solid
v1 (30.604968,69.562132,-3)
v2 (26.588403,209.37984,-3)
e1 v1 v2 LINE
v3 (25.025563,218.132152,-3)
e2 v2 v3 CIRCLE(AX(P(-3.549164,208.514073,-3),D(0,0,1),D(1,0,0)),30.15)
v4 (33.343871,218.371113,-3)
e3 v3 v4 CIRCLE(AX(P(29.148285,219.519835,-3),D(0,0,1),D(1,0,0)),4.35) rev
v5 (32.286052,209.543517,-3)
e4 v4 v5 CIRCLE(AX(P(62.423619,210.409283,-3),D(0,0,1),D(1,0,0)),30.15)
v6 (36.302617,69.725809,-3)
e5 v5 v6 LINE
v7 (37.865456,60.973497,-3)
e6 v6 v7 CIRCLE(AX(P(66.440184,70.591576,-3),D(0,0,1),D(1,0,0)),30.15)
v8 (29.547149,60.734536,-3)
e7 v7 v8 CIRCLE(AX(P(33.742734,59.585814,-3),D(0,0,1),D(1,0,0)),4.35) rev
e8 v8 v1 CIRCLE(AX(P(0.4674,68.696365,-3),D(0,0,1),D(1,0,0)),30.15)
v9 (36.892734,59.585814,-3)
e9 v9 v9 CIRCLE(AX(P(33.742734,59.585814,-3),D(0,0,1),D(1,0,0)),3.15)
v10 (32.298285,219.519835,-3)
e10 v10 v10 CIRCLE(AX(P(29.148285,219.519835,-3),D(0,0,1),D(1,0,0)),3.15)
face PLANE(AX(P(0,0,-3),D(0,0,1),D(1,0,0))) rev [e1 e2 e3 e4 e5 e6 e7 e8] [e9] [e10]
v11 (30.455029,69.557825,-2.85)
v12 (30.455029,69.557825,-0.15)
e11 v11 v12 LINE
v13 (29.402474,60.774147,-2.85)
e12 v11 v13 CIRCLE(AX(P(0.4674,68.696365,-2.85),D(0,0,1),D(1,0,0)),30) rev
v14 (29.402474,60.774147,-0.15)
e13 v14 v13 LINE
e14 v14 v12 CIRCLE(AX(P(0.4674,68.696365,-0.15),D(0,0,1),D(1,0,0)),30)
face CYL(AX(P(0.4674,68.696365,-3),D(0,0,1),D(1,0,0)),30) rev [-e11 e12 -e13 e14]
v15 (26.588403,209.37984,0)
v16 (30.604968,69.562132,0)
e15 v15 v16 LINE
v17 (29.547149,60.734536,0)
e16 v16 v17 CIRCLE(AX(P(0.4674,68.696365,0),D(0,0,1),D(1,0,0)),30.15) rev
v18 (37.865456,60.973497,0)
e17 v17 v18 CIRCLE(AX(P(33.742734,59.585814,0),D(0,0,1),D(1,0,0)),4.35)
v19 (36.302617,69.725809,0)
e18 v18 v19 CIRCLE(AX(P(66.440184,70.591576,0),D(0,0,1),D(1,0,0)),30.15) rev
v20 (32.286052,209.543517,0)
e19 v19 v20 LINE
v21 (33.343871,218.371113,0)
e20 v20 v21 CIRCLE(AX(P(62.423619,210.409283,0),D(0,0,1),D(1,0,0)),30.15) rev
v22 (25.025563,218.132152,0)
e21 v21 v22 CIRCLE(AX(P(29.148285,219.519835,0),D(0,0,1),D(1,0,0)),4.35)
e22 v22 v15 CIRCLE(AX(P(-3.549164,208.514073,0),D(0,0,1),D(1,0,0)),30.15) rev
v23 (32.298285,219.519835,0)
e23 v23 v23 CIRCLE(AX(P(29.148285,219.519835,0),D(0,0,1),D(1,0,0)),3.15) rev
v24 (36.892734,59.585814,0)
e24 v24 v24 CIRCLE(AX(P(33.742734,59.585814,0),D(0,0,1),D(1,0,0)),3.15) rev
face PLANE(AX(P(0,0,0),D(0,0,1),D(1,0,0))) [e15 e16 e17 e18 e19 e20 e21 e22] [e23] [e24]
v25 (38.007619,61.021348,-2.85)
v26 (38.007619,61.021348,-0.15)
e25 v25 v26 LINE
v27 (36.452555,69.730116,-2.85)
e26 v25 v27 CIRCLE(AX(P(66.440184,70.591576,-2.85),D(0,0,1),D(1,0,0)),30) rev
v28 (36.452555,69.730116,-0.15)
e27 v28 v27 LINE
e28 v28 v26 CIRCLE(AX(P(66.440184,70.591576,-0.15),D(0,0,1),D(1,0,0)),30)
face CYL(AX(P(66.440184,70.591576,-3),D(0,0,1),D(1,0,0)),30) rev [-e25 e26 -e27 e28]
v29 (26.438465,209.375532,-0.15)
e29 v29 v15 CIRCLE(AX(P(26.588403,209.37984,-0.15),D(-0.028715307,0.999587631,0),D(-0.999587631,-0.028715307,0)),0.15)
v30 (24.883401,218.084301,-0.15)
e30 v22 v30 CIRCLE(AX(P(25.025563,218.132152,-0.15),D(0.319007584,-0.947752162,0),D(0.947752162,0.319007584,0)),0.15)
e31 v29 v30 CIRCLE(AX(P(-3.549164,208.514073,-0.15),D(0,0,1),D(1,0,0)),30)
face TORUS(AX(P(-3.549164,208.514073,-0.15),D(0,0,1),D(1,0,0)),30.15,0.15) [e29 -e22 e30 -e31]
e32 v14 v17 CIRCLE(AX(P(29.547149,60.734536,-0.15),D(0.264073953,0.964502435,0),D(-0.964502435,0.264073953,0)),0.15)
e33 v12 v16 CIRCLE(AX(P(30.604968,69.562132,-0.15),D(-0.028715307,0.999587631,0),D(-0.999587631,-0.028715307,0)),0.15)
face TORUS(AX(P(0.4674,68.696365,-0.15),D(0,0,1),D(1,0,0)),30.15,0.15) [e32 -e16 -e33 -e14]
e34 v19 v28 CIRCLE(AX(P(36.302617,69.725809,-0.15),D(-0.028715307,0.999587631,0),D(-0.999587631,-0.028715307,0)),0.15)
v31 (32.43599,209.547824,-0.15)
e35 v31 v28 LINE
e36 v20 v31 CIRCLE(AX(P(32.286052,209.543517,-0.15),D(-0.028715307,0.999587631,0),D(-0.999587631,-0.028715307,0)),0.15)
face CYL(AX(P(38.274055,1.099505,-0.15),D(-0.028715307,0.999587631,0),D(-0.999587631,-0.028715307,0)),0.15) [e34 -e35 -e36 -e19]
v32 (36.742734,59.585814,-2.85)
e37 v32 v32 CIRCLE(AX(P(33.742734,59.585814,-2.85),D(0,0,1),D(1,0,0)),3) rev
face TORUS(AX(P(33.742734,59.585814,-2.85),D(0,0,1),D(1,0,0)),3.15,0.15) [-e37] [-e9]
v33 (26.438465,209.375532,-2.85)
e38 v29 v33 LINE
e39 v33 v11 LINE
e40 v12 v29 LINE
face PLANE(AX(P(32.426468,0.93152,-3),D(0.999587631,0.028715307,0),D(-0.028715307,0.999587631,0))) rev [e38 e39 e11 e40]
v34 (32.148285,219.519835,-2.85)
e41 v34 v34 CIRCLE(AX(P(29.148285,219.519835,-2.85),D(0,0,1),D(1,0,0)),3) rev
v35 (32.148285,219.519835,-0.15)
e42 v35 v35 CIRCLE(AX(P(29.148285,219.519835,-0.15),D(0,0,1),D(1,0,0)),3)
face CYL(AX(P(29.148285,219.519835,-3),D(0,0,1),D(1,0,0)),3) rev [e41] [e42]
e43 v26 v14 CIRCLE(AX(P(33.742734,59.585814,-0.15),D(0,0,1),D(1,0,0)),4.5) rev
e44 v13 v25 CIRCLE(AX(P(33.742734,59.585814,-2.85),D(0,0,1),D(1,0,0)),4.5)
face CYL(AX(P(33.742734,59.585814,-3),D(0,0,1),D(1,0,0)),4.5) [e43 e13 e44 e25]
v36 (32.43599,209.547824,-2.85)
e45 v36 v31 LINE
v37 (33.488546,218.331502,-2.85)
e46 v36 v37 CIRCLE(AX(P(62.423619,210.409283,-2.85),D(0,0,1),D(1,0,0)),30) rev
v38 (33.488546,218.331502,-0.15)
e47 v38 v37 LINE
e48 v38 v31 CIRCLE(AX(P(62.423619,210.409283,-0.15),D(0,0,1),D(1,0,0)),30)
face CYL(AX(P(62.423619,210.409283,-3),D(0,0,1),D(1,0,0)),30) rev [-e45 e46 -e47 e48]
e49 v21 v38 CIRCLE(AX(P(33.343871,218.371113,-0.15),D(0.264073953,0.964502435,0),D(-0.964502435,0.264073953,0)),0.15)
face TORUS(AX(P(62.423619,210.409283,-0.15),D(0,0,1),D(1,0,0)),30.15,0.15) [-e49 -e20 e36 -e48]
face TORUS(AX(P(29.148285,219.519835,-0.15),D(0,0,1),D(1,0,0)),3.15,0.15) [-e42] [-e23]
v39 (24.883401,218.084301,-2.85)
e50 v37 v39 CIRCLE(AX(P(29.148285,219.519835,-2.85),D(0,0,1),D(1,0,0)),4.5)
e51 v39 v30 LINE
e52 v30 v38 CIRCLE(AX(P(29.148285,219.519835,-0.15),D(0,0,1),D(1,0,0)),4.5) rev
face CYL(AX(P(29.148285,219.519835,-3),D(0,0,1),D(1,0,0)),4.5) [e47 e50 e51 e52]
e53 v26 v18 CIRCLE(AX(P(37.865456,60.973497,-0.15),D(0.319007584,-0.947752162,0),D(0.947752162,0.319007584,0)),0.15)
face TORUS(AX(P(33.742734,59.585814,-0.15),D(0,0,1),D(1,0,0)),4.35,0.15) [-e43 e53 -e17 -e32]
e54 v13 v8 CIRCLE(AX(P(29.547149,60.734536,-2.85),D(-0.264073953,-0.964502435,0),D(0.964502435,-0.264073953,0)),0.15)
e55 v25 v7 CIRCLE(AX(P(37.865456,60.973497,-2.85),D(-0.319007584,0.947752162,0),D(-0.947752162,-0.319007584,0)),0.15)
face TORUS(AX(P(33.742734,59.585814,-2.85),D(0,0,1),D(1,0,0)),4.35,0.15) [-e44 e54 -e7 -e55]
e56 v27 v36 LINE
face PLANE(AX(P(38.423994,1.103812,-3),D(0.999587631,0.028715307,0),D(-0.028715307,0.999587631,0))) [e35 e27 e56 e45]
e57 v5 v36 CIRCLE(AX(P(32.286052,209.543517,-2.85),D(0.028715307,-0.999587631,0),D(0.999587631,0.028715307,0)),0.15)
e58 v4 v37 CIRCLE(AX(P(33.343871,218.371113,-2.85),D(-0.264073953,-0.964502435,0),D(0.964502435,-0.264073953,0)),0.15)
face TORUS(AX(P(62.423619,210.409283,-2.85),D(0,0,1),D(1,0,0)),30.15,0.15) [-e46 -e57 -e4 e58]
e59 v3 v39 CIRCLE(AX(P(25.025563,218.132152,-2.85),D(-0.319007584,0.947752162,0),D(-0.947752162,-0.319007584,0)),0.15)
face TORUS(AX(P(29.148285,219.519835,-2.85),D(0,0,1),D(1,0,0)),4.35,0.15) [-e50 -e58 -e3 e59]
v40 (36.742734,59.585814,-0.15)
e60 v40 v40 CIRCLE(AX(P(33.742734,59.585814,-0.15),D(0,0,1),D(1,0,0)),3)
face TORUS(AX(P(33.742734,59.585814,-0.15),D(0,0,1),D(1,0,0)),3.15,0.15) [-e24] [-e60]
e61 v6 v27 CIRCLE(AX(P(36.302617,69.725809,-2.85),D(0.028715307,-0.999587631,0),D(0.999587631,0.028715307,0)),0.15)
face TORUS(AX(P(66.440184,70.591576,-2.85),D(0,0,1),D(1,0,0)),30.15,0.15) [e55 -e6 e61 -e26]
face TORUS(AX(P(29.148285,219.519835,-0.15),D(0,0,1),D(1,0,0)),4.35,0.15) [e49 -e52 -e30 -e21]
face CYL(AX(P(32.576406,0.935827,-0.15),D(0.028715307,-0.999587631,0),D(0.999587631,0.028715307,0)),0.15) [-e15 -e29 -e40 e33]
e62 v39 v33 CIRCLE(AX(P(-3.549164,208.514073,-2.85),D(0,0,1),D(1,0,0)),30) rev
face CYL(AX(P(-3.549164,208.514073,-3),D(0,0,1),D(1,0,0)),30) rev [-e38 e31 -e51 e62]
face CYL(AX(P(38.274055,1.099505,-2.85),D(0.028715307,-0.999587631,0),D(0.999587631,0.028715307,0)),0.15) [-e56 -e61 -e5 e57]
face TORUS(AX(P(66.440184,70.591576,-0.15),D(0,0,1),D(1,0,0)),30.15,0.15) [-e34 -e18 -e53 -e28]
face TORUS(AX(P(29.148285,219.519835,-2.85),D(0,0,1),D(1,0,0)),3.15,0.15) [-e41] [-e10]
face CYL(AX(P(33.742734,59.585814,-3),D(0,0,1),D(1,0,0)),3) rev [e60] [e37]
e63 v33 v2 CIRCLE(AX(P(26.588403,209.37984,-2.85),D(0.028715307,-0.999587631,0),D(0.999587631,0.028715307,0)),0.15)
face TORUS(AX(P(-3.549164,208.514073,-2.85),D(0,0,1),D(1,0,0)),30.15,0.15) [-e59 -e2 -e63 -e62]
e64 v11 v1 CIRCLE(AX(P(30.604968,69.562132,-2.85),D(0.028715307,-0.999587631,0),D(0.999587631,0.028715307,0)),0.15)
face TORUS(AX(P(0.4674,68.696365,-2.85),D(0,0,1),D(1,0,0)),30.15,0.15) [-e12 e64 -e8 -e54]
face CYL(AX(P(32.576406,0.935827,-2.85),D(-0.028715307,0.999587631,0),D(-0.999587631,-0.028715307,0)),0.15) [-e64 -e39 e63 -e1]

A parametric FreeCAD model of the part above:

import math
import FreeCAD as App
import Part
import Sketcher

V = App.Vector


def edges_at(feature, points):
    """Names of the edges that pass closest to the given points."""
    edges = feature.Shape.Edges
    near = lambda p: min(range(len(edges)), key=lambda i: edges[i].distToShape(Part.Vertex(*p))[0])
    return sorted({f"Edge{near(p) + 1}" for p in points})

doc = App.newDocument("Part")
body = doc.addObject("PartDesign::Body", "Body")

# Sketch on XY plane
sketch1 = body.newObject("Sketcher::SketchObject", "Sketch")
sketch1.AttachmentSupport = (doc.getObject("XY_Plane"), [""])
sketch1.MapMode = "FlatFace"
sketch1.addGeometry([
    Part.ArcOfCircle(Part.Circle(V(29.1, 219.5, 0), V(0, 0, 1), 4.5), math.radians(0), math.radians(230)),  # 0
    Part.LineSegment(V(26.2, 216.1, 0), V(30.6, 62.9, 0)),  # 1
    Part.ArcOfCircle(Part.Circle(V(33.7, 59.6, 0), V(0, 0, 1), 4.5), math.radians(133), math.radians(360)),  # 2
    Part.ArcOfCircle(Part.Circle(V(33.7, 59.6, 0), V(0, 0, 1), 4.5), math.radians(0), math.radians(50)),  # 3
    Part.LineSegment(V(36.6, 63, 0), V(32.2, 216.3, 0)),  # 4
    Part.ArcOfCircle(Part.Circle(V(29.1, 219.5, 0), V(0, 0, 1), 4.5), math.radians(-47), math.radians(0)),  # 5
    Part.ArcOfCircle(Part.Circle(V(33.7, 59.6, 0), V(0, 0, 1), 3), math.radians(92), math.radians(182)),  # 6
    Part.ArcOfCircle(Part.Circle(V(33.7, 59.6, 0), V(0, 0, 1), 3), math.radians(2), math.radians(92)),  # 7
    Part.ArcOfCircle(Part.Circle(V(33.7, 59.6, 0), V(0, 0, 1), 3), math.radians(-178), math.radians(2)),  # 8
    Part.ArcOfCircle(Part.Circle(V(29.1, 219.5, 0), V(0, 0, 1), 3), math.radians(-178), math.radians(-88)),  # 9
    Part.ArcOfCircle(Part.Circle(V(29.1, 219.5, 0), V(0, 0, 1), 3), math.radians(2), math.radians(182)),  # 10
    Part.ArcOfCircle(Part.Circle(V(29.1, 219.5, 0), V(0, 0, 1), 3), math.radians(-88), math.radians(2)),  # 11
], False)
sketch1.addConstraint([
    Sketcher.Constraint("Coincident", 0, 2, 1, 1),
    Sketcher.Constraint("Coincident", 1, 2, 2, 1),
    Sketcher.Constraint("Tangent", 2, 2, 3, 1),
    Sketcher.Constraint("Coincident", 3, 2, 4, 1),
    Sketcher.Constraint("Coincident", 4, 2, 5, 1),
    Sketcher.Constraint("Tangent", 5, 2, 0, 1),
    Sketcher.Constraint("Tangent", 6, 1, 7, 2),
    Sketcher.Constraint("Tangent", 7, 1, 8, 2),
    Sketcher.Constraint("Tangent", 8, 1, 6, 2),
    Sketcher.Constraint("Tangent", 9, 1, 10, 2),
    Sketcher.Constraint("Tangent", 10, 1, 11, 2),
    Sketcher.Constraint("Tangent", 11, 1, 9, 2),
    Sketcher.Constraint("Coincident", 6, 3, 2, 3),
    Sketcher.Constraint("Coincident", 9, 3, 0, 3),
    Sketcher.Constraint("Equal", 0, 2),
    Sketcher.Constraint("Equal", 2, 3),
    Sketcher.Constraint("Equal", 3, 5),
    Sketcher.Constraint("Equal", 8, 9),
    Sketcher.Constraint("Parallel", 1, 4),
    Sketcher.Constraint("Horizontal", 8, 3, 2, 2),
    Sketcher.Constraint("Horizontal", 11, 3, 5, 2),
    Sketcher.Constraint("Equal", 1, 4),
    Sketcher.Constraint("Radius", 6, 3.0),
    Sketcher.Constraint("Radius", 0, 4.5),
    Sketcher.Constraint("DistanceY", -1, 1, 0, 2, 216.08097),
    Sketcher.Constraint("DistanceY", -1, 1, 3, 2, 63.024679),
    Sketcher.Constraint("DistanceY", -1, 1, 4, 2, 216.253262),
    Sketcher.Constraint("DistanceX", -1, 1, 6, 1, 33.656589),
    Sketcher.Constraint("DistanceY", -1, 1, 7, 1, 59.67196),
    Sketcher.Constraint("DistanceX", -1, 1, 8, 1, 30.743972),
    Sketcher.Constraint("DistanceY", -1, 1, 8, 1, 59.499668),
    Sketcher.Constraint("DistanceY", -1, 1, 9, 1, 219.433689),
    Sketcher.Constraint("DistanceX", -1, 1, 10, 1, 32.147048),
    Sketcher.Constraint("DistanceY", -1, 1, 10, 1, 219.605981),
    Sketcher.Constraint("DistanceX", -1, 1, 11, 1, 29.234431),
    Sketcher.Constraint("DistanceY", -1, 1, 11, 1, 216.521072),
])
pad1 = body.newObject("PartDesign::Pad", "Pad")
pad1.Profile = sketch1
pad1.Length = 3
pad1.Reversed = True
doc.recompute()

fillet = body.newObject("PartDesign::Fillet", "Fillet")
fillet.Base = (pad1, edges_at(pad1, [
    (30.648, 62.852, -1.5),
    (26.246, 216.081, -1.5),
    (32.243, 216.253, -1.5),
    (36.645, 63.025, -1.5),
]))
fillet.Radius = 30
doc.recompute()

fillet2 = body.newObject("PartDesign::Fillet", "Fillet001")
fillet2.Base = (fillet, edges_at(fillet, [
    (34.444, 139.639, 0),
    (34.444, 139.639, -3),
    (27.089, 217.338, -3),
    (28.421, 223.961, 0),
    (28.421, 223.961, -3),
    (28.447, 139.467, 0),
    (28.447, 139.467, -3),
    (33.143, 55.126, 0),
    (33.143, 55.126, -3),
    (32.637, 213.979, 0),
    (31.561, 61.645, -3),
    (32.637, 213.979, -3),
    (25.984, 213.788, 0),
    (25.984, 213.788, -3),
    (30.254, 65.127, 0),
    (30.254, 65.127, -3),
    (36.907, 65.318, 0),
    (36.907, 65.318, -3),
    (31.561, 61.645, 0),
    (27.089, 217.338, 0),
]))
fillet2.Radius = 0.15

doc.recompute()
